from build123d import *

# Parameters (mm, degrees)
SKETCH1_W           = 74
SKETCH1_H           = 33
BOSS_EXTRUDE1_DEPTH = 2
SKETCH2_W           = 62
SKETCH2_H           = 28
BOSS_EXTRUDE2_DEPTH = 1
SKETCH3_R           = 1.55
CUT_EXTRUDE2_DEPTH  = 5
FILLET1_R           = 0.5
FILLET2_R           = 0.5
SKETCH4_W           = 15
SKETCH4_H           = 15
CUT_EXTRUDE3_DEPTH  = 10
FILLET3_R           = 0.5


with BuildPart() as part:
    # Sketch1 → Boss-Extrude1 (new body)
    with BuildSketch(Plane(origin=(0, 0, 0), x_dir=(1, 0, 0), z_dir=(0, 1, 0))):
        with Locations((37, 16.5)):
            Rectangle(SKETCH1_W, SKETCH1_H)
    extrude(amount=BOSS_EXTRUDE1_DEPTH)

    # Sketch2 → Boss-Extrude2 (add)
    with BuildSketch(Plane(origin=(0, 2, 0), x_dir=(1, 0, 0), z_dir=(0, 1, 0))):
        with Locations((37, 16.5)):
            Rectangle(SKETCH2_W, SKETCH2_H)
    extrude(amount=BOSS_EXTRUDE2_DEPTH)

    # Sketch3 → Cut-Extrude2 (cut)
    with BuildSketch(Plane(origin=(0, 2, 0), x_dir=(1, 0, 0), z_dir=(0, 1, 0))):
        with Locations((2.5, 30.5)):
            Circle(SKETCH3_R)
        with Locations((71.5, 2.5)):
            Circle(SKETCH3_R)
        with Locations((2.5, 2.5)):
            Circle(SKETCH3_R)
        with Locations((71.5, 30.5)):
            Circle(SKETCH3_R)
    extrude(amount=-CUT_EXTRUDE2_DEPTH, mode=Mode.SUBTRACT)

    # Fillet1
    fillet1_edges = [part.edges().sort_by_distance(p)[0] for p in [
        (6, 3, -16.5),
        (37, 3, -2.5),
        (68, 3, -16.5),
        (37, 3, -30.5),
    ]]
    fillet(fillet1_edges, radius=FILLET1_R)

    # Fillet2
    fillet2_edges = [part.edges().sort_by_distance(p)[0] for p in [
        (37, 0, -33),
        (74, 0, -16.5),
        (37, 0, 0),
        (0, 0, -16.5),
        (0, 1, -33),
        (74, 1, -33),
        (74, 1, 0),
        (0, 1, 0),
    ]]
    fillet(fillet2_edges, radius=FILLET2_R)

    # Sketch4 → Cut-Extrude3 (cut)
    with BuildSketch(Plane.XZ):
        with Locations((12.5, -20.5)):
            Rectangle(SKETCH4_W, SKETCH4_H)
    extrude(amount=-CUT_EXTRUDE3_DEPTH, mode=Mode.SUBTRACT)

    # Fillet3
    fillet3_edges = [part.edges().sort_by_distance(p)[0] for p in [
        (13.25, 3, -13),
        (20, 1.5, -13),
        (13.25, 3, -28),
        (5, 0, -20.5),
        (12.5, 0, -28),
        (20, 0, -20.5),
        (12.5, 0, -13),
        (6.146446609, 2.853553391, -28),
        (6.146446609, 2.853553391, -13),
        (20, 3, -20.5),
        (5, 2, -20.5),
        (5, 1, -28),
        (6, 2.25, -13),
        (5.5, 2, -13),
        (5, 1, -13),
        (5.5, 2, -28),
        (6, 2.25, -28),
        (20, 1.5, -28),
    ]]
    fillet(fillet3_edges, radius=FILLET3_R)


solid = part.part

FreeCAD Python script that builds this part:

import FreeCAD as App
import Part
import Sketcher
from FreeCAD import Vector
Q = App.Units.Quantity


def edges_at(feature, points):
    """Names of the edges that pass closest to the given points."""
    edges = feature.Shape.Edges
    near = lambda p: min(range(len(edges)), key=lambda i: edges[i].distToShape(Part.Vertex(*p))[0])
    return sorted({f"Edge{near(p) + 1}" for p in points})


def add_polygon(sketch, points):
    """Adds a closed chain of lines whose ends are joined by coincident constraints."""
    first, n = sketch.GeometryCount, len(points)
    for a, b in zip(points, points[1:] + points[:1]):
        sketch.addGeometry(Part.LineSegment(App.Vector(*a, 0), App.Vector(*b, 0)), False)
    for i in range(n):
        sketch.addConstraint(Sketcher.Constraint("Coincident", first + i, 2, first + (i + 1) % n, 1))

doc = App.newDocument("Part")
body = doc.addObject("PartDesign::Body", "Body")

# Sketch on XZ plane
sketch1 = body.newObject("Sketcher::SketchObject", "Sketch")
sketch1.AttachmentSupport = (doc.getObject("XZ_Plane"), [""])
sketch1.MapMode = "FlatFace"
add_polygon(sketch1, [(0, -33), (0, 0), (74, 0), (74, -33)])  # lines 0-3
sketch1.addConstraint(Sketcher.Constraint("Vertical", 0))
sketch1.addConstraint(Sketcher.Constraint("Horizontal", 1))
sketch1.addConstraint(Sketcher.Constraint("Vertical", 2))
sketch1.addConstraint(Sketcher.Constraint("Horizontal", 3))
sketch1.addConstraint(Sketcher.Constraint("Coincident", 0, 2, -1, 1))
sketch1.addConstraint(Sketcher.Constraint("DistanceX", 1, 1, 1, 2, Q("74 mm")))
sketch1.addConstraint(Sketcher.Constraint("DistanceY", 0, 1, 0, 2, Q("33 mm")))
pad1 = body.newObject("PartDesign::Pad", "Pad")
pad1.Profile = sketch1
pad1.Length = 2
pad1.Reversed = True

# Sketch on XZ plane
sketch2 = body.newObject("Sketcher::SketchObject", "Sketch001")
sketch2.AttachmentSupport = (doc.getObject("XZ_Plane"), [""])
sketch2.MapMode = "FlatFace"
sketch2.AttachmentOffset = App.Placement(Vector(0, 0, -2), App.Rotation())
add_polygon(sketch2, [(6, -30.5), (6, -2.5), (68, -2.5), (68, -30.5)])  # lines 0-3
sketch2.addConstraint(Sketcher.Constraint("Vertical", 0))
sketch2.addConstraint(Sketcher.Constraint("Horizontal", 1))
sketch2.addConstraint(Sketcher.Constraint("Vertical", 2))
sketch2.addConstraint(Sketcher.Constraint("Horizontal", 3))
sketch2.addConstraint(Sketcher.Constraint("DistanceX", 1, 1, 1, 2, Q("62 mm")))
sketch2.addConstraint(Sketcher.Constraint("DistanceY", 0, 1, 0, 2, Q("28 mm")))
sketch2.addConstraint(Sketcher.Constraint("DistanceX", -1, 1, 0, 2, Q("6 mm")))
sketch2.addConstraint(Sketcher.Constraint("DistanceY", 0, 2, -1, 1, Q("2.5 mm")))
pad2 = body.newObject("PartDesign::Pad", "Pad001")
pad2.Profile = sketch2
pad2.Length = 1
pad2.Reversed = True

# Sketch on XZ plane
sketch3 = body.newObject("Sketcher::SketchObject", "Sketch002")
sketch3.AttachmentSupport = (doc.getObject("XZ_Plane"), [""])
sketch3.MapMode = "FlatFace"
sketch3.AttachmentOffset = App.Placement(Vector(0, 0, -2), App.Rotation())
sketch3.addGeometry(Part.Circle(Vector(2.5, -30.5, 0), Vector(0, 0, 1), 1.55), False)
sketch3.addGeometry(Part.Circle(Vector(71.5, -2.5, 0), Vector(0, 0, 1), 1.55), False)
sketch3.addGeometry(Part.Circle(Vector(2.5, -2.5, 0), Vector(0, 0, 1), 1.55), False)
sketch3.addGeometry(Part.Circle(Vector(71.5, -30.5, 0), Vector(0, 0, 1), 1.55), False)
sketch3.addConstraint(Sketcher.Constraint("Equal", 0, 1))
sketch3.addConstraint(Sketcher.Constraint("Equal", 1, 2))
sketch3.addConstraint(Sketcher.Constraint("Equal", 2, 3))
sketch3.addConstraint(Sketcher.Constraint("Horizontal", 1, 3, 2, 3))
sketch3.addConstraint(Sketcher.Constraint("Horizontal", 0, 3, 3, 3))
sketch3.addConstraint(Sketcher.Constraint("Vertical", 0, 3, 2, 3))
sketch3.addConstraint(Sketcher.Constraint("Vertical", 1, 3, 3, 3))
sketch3.addConstraint(Sketcher.Constraint("Diameter", 0, Q("3.1 mm")))
sketch3.addConstraint(Sketcher.Constraint("DistanceX", 0, 3, 1, 3, Q("69 mm")))
sketch3.addConstraint(Sketcher.Constraint("DistanceY", 0, 3, 1, 3, Q("28 mm")))
sketch3.addConstraint(Sketcher.Constraint("DistanceX", -1, 1, 0, 3, Q("2.5 mm")))
sketch3.addConstraint(Sketcher.Constraint("DistanceY", 0, 3, -1, 1, Q("30.5 mm")))
pocket1 = body.newObject("PartDesign::Pocket", "Pocket")
pocket1.Profile = sketch3
pocket1.Length = 5
pocket1.Reversed = True
doc.recompute()

fillet = body.newObject("PartDesign::Fillet", "Fillet")
fillet.Base = (pocket1, edges_at(pocket1, [
    (6, 3, -16.5),
    (37, 3, -2.5),
    (68, 3, -16.5),
    (37, 3, -30.5),
]))
fillet.Radius = 0.5
doc.recompute()

fillet2 = body.newObject("PartDesign::Fillet", "Fillet001")
fillet2.Base = (fillet, edges_at(fillet, [
    (37, 0, -33),
    (74, 0, -16.5),
    (37, 0, 0),
    (0, 0, -16.5),
    (0, 1, -33),
    (74, 1, -33),
    (74, 1, 0),
    (0, 1, 0),
]))
fillet2.Radius = 0.5

# Sketch on XZ plane
sketch4 = body.newObject("Sketcher::SketchObject", "Sketch003")
sketch4.AttachmentSupport = (doc.getObject("XZ_Plane"), [""])
sketch4.MapMode = "FlatFace"
add_polygon(sketch4, [(5, -13), (5, -28), (20, -28), (20, -13)])  # lines 0-3
sketch4.addConstraint(Sketcher.Constraint("Vertical", 0))
sketch4.addConstraint(Sketcher.Constraint("Horizontal", 1))
sketch4.addConstraint(Sketcher.Constraint("Vertical", 2))
sketch4.addConstraint(Sketcher.Constraint("Horizontal", 3))
sketch4.addConstraint(Sketcher.Constraint("Equal", 3, 0))
sketch4.addConstraint(Sketcher.Constraint("DistanceX", 1, 1, 1, 2, Q("15 mm")))
sketch4.addConstraint(Sketcher.Constraint("DistanceX", -1, 1, 0, 2, Q("5 mm")))
sketch4.addConstraint(Sketcher.Constraint("DistanceY", 0, 2, -1, 1, Q("28 mm")))
pocket2 = body.newObject("PartDesign::Pocket", "Pocket001")
pocket2.Profile = sketch4
pocket2.Length = 10
doc.recompute()

fillet3 = body.newObject("PartDesign::Fillet", "Fillet002")
fillet3.Base = (pocket2, edges_at(pocket2, [
    (13.25, 3, -13),
    (20, 1.5, -13),
    (13.25, 3, -28),
    (5, 0, -20.5),
    (12.5, 0, -28),
    (20, 0, -20.5),
    (12.5, 0, -13),
    (6.146, 2.854, -28),
    (6.146, 2.854, -13),
    (20, 3, -20.5),
    (5, 2, -20.5),
    (5, 1, -28),
    (6, 2.25, -13),
    (5.5, 2, -13),
    (5, 1, -13),
    (5.5, 2, -28),
    (6, 2.25, -28),
    (20, 1.5, -28),
]))
fillet3.Radius = 0.5

doc.recompute()
